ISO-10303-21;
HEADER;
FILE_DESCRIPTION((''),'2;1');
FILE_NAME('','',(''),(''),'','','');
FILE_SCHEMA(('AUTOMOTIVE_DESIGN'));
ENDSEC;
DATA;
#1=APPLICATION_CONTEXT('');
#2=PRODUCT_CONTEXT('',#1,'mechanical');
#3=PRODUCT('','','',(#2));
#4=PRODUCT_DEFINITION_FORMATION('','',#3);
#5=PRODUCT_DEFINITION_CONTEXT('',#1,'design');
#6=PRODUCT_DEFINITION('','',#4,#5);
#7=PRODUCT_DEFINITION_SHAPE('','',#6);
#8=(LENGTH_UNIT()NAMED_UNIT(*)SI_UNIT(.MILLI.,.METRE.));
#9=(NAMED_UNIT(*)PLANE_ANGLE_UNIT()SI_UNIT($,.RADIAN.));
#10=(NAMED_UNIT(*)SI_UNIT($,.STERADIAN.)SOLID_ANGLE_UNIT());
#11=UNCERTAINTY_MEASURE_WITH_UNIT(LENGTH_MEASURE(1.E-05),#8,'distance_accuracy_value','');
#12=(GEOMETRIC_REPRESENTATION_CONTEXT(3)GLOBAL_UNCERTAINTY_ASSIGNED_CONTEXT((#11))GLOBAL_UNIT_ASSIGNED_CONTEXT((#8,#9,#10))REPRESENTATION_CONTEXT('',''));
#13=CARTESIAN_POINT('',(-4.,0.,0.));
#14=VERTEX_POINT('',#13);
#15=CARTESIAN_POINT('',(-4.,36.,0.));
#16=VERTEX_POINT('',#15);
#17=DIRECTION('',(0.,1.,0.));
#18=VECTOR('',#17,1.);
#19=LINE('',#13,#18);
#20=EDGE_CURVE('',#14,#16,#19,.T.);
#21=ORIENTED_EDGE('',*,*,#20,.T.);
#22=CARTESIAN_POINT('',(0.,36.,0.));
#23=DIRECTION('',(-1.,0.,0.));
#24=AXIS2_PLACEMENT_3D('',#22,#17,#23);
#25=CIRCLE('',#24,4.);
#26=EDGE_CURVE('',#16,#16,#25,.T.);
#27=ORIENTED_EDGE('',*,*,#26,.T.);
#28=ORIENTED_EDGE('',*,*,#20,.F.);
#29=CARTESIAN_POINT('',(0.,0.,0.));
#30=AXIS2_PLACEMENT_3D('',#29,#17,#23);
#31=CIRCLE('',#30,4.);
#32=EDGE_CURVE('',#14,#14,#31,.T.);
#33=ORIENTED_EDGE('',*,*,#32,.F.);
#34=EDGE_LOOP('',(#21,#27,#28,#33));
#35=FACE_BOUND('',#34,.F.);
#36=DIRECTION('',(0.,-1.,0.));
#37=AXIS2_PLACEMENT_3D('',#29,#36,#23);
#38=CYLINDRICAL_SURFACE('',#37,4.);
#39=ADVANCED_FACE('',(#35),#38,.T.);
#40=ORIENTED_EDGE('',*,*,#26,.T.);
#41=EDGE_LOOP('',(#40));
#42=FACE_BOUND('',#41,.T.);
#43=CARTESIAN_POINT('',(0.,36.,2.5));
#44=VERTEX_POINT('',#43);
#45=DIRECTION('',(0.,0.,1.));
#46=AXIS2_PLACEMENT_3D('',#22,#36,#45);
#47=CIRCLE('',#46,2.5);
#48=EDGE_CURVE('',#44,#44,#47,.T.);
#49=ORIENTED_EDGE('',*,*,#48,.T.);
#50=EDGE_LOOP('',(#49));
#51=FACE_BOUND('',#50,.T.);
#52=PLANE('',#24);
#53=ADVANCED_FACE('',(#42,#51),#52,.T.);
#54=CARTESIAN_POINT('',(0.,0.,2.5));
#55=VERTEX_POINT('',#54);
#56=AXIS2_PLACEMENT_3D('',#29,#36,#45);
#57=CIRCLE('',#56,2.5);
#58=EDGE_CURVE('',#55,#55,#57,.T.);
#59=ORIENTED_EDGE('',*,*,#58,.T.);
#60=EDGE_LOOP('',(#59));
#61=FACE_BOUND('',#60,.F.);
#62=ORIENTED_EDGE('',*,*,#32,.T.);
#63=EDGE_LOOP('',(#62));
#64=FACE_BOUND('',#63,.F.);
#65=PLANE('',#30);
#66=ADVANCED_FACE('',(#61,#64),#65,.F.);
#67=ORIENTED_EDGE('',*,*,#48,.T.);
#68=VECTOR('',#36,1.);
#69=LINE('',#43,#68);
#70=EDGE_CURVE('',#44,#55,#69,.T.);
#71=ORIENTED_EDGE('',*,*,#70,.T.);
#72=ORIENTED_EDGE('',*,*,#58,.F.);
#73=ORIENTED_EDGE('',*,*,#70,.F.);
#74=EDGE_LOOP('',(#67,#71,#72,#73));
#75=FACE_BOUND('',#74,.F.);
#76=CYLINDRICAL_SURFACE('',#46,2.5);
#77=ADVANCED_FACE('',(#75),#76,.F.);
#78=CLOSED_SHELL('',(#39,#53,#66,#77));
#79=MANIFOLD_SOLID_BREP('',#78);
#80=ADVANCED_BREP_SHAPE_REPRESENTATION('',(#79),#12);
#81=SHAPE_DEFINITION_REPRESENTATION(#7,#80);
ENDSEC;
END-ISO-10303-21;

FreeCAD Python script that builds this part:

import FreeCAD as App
import Part
import Sketcher

doc = App.newDocument("Part")
body = doc.addObject("PartDesign::Body", "Body")

# Sketch on XZ plane
sketch1 = doc.addObject("Sketcher::SketchObject", "Sketch")
body.addObject(sketch1)
sketch1.AttachmentSupport = (doc.XZ_Plane, [""])
sketch1.MapMode = "FlatFace"
sketch1.addGeometry(Part.Circle(App.Vector(0, 0, 0), App.Vector(0, 0, 1), 4), False)
sketch1.addConstraint([
    Sketcher.Constraint("Coincident", 0, 3, -1, 1),
    Sketcher.Constraint("Diameter", 0, 8.0),
])
pad1 = doc.addObject("PartDesign::Pad", "Pad")
body.addObject(pad1)
pad1.Profile = sketch1
pad1.Length = 36
pad1.Reversed = True

# Sketch on XZ plane
sketch2 = doc.addObject("Sketcher::SketchObject", "Sketch001")
body.addObject(sketch2)
sketch2.AttachmentSupport = (doc.XZ_Plane, [""])
sketch2.MapMode = "FlatFace"
sketch2.AttachmentOffset = App.Placement(App.Vector(0, 0, -36), App.Rotation())
sketch2.addGeometry(Part.Circle(App.Vector(0, 0, 0), App.Vector(0, 0, 1), 2.5), False)
sketch2.addConstraint([
    Sketcher.Constraint("Coincident", 0, 3, -1, 1),
    Sketcher.Constraint("Diameter", 0, 5.0),
])
doc.recompute()
hole = doc.addObject("PartDesign::Hole", "Hole")
body.addObject(hole)
hole.Profile = sketch2
hole.ThreadType = "None"
hole.Diameter = 5
hole.DepthType = "ThroughAll"
hole.Reversed = True

doc.recompute()
